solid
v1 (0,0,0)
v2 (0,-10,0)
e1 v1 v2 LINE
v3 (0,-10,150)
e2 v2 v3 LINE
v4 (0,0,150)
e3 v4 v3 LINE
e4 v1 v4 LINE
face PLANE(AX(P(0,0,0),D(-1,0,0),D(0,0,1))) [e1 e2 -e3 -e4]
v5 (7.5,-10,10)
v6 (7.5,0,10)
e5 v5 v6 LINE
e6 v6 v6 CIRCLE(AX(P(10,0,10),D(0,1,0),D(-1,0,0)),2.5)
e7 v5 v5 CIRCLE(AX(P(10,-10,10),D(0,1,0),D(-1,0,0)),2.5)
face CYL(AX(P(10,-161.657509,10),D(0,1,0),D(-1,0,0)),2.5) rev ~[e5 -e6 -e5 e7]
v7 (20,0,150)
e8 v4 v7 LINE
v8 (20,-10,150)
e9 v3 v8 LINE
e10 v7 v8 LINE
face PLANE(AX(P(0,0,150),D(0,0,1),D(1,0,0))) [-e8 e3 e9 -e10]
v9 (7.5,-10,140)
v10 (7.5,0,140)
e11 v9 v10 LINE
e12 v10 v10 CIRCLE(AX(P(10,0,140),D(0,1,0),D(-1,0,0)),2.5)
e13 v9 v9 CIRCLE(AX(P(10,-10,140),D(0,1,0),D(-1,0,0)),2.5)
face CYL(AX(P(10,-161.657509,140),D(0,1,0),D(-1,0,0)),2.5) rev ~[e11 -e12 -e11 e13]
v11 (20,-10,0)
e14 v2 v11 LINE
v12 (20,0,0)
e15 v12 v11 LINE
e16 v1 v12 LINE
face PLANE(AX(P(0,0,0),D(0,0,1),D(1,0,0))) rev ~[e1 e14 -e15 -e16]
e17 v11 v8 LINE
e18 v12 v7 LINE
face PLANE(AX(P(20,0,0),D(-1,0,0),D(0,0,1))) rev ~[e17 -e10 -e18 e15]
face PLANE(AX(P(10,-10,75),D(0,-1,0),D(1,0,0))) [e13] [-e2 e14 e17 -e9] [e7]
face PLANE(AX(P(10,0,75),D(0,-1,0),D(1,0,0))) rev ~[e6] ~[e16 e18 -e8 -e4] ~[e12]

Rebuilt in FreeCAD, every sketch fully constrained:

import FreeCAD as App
import Part
import Sketcher

V = App.Vector


def add_polygon(sketch, points):
    """Adds a closed chain of lines whose ends are joined by coincident constraints."""
    first, n = sketch.GeometryCount, len(points)
    for a, b in zip(points, points[1:] + points[:1]):
        sketch.addGeometry(Part.LineSegment(App.Vector(*a, 0), App.Vector(*b, 0)), False)
    for i in range(n):
        sketch.addConstraint(Sketcher.Constraint("Coincident", first + i, 2, first + (i + 1) % n, 1))

doc = App.newDocument("Part")
body = doc.addObject("PartDesign::Body", "Body")

# Sketch on XZ plane
sketch1 = body.newObject("Sketcher::SketchObject", "Sketch")
sketch1.AttachmentSupport = (doc.getObject("XZ_Plane"), [""])
sketch1.MapMode = "FlatFace"
add_polygon(sketch1, [(0, 150), (0, 0), (20, 0), (20, 150)])  # lines 0-3
sketch1.addConstraint(Sketcher.Constraint("Vertical", 0))
sketch1.addConstraint(Sketcher.Constraint("Horizontal", 1))
sketch1.addConstraint(Sketcher.Constraint("Vertical", 2))
sketch1.addConstraint(Sketcher.Constraint("Horizontal", 3))
sketch1.addConstraint(Sketcher.Constraint("Coincident", 0, 2, -1, 1))
sketch1.addConstraint(Sketcher.Constraint("DistanceX", 1, 1, 1, 2, 20.0))
sketch1.addConstraint(Sketcher.Constraint("DistanceY", 0, 2, 0, 1, 150.0))
pad1 = body.newObject("PartDesign::Pad", "Pad")
pad1.Profile = sketch1
pad1.Length = 10

# Sketch on XZ plane
sketch2 = body.newObject("Sketcher::SketchObject", "Sketch001")
sketch2.AttachmentSupport = (doc.getObject("XZ_Plane"), [""])
sketch2.MapMode = "FlatFace"
sketch2.AttachmentOffset = App.Placement(V(0, 0, 10), App.Rotation())
sketch2.addGeometry(Part.Circle(V(10, 140, 0), V(0, 0, 1), 2.5), False)
sketch2.addGeometry(Part.Circle(V(10, 10, 0), V(0, 0, 1), 2.5), False)
sketch2.addConstraint(Sketcher.Constraint("Equal", 0, 1))
sketch2.addConstraint(Sketcher.Constraint("Vertical", 0, 3, 1, 3))
sketch2.addConstraint(Sketcher.Constraint("Diameter", 0, 5.0))
sketch2.addConstraint(Sketcher.Constraint("DistanceX", -1, 1, 0, 3, 10.0))
sketch2.addConstraint(Sketcher.Constraint("DistanceY", -1, 1, 0, 3, 140.0))
sketch2.addConstraint(Sketcher.Constraint("DistanceY", -1, 1, 1, 3, 10.0))
doc.recompute()
hole = body.newObject("PartDesign::Hole", "Hole")
hole.Profile = sketch2
hole.ThreadType = "None"
hole.Diameter = 5
hole.DepthType = "ThroughAll"

doc.recompute()
